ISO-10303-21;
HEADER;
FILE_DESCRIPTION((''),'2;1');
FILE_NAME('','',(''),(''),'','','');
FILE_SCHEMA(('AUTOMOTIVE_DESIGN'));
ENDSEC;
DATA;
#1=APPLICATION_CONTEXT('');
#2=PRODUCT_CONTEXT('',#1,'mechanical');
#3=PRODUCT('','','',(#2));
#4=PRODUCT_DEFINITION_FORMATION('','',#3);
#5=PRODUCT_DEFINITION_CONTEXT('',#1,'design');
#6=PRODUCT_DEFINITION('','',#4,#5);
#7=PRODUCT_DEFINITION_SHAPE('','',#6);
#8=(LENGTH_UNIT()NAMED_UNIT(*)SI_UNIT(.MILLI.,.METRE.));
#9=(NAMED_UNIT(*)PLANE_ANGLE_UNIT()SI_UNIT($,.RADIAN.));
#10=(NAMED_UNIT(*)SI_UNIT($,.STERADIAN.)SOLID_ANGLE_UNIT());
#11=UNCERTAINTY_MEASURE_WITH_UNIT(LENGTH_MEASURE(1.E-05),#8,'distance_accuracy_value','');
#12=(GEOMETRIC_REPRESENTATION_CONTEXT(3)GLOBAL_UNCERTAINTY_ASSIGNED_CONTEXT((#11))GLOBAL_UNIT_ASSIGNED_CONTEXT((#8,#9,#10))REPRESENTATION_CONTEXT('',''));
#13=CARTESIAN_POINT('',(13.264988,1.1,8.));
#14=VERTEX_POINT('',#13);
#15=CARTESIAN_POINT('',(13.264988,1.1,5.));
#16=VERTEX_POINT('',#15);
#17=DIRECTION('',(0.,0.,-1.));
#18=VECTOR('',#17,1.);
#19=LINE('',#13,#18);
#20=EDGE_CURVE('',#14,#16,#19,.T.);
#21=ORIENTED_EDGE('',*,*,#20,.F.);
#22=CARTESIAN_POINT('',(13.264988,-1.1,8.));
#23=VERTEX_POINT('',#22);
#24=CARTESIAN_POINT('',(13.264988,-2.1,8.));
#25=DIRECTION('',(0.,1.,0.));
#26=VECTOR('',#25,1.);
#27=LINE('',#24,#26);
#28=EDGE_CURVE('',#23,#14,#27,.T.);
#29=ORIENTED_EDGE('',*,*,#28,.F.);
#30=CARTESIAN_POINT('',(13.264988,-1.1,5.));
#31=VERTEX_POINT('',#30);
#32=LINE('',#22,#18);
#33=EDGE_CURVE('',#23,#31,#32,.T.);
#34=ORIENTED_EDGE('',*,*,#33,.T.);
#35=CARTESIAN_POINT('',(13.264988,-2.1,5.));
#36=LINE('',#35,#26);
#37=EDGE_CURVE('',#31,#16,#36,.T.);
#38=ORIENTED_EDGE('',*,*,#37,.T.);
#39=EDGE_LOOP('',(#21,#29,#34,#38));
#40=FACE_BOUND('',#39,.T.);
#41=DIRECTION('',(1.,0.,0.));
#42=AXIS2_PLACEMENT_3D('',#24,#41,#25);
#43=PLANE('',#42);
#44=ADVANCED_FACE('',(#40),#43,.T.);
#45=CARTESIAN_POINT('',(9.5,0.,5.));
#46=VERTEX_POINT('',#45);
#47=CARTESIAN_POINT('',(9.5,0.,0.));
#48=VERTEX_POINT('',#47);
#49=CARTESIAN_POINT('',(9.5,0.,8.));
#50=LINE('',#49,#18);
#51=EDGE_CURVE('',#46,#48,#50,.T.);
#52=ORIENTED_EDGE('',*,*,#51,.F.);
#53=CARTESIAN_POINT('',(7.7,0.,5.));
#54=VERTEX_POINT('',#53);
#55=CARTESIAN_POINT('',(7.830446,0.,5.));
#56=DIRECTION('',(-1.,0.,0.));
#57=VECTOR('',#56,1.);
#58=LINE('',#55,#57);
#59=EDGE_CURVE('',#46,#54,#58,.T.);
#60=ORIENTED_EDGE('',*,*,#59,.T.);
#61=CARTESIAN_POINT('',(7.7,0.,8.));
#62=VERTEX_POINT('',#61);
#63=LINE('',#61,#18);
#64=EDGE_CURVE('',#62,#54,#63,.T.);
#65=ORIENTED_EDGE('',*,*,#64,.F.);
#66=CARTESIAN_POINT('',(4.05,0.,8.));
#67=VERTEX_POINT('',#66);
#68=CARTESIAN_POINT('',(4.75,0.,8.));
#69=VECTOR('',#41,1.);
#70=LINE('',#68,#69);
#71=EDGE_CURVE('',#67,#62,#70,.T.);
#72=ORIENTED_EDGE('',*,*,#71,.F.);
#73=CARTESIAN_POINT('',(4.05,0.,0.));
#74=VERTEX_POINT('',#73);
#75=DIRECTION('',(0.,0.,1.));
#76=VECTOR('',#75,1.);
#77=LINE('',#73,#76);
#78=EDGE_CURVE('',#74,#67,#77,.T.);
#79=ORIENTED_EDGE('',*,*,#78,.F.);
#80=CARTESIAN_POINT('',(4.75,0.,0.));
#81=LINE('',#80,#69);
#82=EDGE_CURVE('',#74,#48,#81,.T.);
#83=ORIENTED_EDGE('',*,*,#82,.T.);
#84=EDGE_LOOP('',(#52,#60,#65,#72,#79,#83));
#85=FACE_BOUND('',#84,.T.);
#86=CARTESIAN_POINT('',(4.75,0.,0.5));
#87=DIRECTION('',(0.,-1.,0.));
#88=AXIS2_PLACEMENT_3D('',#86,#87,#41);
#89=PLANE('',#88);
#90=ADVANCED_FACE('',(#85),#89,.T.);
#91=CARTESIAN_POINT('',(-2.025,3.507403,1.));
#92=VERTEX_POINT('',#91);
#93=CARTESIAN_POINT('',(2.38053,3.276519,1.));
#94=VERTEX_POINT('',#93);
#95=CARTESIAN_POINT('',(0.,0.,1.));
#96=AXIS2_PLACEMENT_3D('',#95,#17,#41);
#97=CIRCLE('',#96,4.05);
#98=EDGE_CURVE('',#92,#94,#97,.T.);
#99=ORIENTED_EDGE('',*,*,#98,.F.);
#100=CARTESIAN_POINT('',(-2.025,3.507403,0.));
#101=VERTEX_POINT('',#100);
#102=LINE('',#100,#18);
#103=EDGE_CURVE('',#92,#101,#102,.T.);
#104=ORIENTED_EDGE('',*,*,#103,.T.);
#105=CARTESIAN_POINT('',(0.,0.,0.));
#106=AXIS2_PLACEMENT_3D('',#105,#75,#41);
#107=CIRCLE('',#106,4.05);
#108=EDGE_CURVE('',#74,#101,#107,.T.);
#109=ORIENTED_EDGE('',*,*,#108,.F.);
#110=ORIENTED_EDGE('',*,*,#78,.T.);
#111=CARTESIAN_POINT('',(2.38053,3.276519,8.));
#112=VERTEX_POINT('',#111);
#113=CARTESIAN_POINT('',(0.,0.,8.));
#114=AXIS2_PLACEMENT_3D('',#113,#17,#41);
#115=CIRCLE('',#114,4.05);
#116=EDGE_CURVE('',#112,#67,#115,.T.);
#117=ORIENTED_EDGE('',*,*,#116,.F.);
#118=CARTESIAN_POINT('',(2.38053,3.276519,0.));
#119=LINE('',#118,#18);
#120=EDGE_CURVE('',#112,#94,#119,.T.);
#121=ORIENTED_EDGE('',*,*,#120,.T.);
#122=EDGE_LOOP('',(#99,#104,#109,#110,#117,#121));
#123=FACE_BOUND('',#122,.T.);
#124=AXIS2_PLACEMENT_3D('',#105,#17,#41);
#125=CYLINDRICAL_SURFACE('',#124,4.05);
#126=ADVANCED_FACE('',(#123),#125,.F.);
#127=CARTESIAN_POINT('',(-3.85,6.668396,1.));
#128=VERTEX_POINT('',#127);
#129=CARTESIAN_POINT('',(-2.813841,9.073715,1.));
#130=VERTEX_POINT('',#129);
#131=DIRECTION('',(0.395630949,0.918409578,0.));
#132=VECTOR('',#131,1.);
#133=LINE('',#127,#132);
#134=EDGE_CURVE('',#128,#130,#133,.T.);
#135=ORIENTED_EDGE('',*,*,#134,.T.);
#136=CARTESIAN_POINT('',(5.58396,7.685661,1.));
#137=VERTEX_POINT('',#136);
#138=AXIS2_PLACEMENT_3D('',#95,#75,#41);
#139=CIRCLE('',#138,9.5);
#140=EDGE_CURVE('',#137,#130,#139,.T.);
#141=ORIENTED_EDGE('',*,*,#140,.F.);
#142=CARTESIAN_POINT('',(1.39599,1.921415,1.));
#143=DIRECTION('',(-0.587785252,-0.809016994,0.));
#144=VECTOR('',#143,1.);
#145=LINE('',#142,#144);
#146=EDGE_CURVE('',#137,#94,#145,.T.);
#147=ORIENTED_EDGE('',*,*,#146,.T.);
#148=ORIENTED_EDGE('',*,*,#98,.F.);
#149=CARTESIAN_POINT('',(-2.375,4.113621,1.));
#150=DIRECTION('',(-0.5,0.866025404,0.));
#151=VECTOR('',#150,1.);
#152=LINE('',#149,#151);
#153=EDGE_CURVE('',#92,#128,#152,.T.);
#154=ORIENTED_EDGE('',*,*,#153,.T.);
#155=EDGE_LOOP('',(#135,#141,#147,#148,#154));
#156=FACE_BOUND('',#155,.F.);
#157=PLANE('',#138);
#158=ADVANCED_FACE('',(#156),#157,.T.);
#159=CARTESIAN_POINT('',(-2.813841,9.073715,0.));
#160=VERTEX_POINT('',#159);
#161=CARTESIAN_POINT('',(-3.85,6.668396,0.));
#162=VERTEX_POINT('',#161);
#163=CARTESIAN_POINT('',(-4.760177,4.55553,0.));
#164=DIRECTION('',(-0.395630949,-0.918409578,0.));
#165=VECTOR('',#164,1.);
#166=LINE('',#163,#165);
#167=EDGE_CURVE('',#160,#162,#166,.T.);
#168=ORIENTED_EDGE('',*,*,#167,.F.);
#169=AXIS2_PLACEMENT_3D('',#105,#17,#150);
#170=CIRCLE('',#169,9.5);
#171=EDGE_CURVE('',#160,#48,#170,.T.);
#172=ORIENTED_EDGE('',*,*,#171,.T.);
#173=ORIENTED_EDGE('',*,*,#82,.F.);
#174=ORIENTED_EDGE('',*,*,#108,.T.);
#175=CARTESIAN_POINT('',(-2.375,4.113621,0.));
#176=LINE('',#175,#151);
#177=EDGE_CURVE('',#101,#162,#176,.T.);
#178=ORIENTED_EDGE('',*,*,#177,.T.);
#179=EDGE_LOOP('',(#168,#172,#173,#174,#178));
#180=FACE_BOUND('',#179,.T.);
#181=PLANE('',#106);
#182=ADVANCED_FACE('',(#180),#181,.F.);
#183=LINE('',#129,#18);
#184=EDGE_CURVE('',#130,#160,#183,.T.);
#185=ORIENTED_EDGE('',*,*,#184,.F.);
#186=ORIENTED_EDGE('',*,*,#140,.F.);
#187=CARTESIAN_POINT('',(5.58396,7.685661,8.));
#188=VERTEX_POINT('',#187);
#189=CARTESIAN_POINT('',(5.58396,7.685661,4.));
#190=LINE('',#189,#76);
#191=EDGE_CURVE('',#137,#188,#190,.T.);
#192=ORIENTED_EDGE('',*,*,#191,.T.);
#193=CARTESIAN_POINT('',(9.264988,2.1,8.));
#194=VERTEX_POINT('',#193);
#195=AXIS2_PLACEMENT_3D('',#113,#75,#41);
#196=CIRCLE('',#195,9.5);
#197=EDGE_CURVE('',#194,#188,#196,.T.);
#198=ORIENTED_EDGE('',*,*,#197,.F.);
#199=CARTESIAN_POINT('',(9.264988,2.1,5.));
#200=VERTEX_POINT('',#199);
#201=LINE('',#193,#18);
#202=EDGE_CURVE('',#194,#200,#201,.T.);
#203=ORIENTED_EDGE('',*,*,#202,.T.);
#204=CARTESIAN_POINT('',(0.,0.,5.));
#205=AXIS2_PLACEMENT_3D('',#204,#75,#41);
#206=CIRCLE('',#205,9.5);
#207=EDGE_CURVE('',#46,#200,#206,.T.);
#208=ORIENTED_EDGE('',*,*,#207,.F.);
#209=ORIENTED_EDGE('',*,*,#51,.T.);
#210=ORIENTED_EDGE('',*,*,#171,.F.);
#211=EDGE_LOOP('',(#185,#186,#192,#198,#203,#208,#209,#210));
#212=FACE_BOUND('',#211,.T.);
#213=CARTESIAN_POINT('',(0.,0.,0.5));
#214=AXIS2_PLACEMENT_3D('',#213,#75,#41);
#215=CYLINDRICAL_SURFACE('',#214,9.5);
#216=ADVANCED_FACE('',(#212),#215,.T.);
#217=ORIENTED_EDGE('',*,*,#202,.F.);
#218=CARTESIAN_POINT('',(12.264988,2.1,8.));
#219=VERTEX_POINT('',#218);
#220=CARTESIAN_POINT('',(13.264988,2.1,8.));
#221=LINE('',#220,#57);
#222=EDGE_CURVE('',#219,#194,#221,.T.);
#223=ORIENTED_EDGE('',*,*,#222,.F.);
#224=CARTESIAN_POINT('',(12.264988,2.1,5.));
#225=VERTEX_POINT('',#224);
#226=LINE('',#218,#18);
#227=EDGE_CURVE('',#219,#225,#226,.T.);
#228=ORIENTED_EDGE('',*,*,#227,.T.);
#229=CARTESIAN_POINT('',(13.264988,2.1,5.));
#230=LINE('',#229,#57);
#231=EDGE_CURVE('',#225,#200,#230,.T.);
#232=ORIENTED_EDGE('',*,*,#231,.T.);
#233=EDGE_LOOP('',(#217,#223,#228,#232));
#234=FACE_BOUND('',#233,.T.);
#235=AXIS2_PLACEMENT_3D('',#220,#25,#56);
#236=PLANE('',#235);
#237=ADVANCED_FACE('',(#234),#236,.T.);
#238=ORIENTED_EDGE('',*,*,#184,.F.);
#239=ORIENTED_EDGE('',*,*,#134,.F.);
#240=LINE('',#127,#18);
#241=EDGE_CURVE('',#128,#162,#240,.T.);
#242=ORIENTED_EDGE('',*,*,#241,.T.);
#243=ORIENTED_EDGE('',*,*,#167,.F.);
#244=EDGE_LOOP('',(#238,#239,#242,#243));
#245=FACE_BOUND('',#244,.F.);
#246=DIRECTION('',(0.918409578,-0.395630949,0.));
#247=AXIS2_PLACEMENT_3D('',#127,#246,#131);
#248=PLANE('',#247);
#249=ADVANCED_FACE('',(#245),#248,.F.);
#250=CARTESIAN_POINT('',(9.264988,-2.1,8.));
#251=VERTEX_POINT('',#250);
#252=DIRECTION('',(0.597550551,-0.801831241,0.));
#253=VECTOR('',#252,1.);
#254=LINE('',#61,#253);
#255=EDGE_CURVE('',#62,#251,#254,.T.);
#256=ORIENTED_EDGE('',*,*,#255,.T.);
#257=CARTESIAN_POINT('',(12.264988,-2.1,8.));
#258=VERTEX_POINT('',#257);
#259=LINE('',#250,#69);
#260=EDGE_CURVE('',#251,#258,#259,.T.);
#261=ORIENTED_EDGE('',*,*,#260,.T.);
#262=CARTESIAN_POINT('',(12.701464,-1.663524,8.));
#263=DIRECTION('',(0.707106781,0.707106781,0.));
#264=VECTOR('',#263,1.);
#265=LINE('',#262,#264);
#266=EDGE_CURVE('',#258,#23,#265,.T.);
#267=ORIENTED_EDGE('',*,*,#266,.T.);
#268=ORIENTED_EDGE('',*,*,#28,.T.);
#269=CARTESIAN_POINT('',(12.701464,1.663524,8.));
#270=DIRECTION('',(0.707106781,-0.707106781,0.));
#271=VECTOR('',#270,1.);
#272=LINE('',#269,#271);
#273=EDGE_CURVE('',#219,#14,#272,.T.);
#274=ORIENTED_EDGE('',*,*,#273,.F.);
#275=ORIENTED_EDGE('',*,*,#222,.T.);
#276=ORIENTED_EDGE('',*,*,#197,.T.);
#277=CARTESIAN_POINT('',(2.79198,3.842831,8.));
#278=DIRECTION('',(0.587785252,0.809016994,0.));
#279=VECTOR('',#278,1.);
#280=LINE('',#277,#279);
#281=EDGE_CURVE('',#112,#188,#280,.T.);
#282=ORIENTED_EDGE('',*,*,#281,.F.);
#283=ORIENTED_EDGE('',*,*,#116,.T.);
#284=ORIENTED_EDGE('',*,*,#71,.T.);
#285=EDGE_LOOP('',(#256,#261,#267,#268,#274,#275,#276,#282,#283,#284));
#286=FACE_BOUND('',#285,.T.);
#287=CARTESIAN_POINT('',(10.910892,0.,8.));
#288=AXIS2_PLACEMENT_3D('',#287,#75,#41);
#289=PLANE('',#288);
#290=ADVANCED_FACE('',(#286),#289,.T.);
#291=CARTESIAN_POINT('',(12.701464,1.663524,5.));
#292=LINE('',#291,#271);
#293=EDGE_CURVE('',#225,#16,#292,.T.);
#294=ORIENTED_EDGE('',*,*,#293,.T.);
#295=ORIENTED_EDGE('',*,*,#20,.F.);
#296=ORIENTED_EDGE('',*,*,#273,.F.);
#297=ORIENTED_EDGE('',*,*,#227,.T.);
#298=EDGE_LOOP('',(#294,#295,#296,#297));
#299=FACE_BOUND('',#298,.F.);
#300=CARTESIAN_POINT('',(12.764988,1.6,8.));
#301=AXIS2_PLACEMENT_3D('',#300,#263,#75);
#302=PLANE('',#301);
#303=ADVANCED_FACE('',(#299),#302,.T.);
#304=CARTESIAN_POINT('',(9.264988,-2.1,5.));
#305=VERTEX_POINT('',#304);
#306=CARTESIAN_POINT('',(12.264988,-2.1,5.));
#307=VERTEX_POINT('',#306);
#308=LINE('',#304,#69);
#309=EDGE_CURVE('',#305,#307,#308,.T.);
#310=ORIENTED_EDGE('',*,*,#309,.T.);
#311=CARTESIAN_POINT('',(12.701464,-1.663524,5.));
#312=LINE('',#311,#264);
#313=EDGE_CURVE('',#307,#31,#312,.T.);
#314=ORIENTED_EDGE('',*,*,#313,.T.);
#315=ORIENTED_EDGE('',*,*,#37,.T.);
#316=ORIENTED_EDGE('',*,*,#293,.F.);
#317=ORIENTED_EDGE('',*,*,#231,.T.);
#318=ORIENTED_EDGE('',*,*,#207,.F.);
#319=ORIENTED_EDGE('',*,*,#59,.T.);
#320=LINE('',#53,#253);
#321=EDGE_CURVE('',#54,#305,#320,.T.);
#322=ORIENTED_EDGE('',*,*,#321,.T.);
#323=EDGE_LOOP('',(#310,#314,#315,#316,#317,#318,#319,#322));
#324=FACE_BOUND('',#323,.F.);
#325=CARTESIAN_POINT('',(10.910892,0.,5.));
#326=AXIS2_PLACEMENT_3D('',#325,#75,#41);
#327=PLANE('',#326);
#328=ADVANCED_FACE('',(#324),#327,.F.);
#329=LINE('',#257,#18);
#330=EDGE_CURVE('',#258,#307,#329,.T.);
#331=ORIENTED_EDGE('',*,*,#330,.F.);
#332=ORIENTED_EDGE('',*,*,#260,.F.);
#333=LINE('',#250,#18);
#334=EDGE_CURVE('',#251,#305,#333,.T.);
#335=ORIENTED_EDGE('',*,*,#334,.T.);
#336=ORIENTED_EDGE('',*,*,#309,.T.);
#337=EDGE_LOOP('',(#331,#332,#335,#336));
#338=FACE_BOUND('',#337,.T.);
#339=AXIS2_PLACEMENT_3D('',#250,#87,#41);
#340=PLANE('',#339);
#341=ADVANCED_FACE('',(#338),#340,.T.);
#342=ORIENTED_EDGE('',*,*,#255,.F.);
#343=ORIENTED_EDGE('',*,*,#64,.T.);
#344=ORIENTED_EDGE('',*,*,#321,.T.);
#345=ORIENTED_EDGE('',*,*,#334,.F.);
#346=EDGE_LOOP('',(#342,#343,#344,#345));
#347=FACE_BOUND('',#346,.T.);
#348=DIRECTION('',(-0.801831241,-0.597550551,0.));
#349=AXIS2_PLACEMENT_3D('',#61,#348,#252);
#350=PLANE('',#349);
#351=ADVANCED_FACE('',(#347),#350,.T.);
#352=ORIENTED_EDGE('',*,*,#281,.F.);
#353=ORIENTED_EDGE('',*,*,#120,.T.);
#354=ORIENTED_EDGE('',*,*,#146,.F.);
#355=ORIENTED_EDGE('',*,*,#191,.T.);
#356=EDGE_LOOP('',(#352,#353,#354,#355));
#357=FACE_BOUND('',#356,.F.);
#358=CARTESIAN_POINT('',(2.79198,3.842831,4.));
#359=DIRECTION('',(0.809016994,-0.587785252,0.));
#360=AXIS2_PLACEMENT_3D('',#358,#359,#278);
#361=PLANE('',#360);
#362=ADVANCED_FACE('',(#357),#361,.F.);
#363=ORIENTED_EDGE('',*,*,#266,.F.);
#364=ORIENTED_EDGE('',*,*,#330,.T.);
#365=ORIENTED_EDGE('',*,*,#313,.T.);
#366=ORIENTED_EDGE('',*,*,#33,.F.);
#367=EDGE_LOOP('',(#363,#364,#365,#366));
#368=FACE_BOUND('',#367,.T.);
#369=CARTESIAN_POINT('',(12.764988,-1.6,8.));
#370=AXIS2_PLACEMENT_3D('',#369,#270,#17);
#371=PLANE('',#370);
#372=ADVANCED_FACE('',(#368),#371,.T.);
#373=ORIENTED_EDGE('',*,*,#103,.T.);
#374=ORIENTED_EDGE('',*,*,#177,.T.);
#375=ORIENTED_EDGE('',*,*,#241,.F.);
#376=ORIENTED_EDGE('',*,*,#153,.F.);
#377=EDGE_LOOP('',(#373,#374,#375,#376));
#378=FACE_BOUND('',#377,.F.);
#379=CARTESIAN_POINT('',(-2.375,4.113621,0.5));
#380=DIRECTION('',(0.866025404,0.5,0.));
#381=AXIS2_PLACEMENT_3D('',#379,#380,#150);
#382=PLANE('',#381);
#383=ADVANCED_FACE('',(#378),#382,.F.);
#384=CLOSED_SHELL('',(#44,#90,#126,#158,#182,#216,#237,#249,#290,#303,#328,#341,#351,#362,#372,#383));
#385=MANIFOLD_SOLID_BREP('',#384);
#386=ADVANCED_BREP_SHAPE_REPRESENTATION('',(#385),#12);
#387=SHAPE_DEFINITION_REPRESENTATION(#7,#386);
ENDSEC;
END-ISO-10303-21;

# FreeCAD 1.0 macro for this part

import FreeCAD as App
import Part
import Sketcher


def edges_at(feature, points):
    """Names of the edges that pass closest to the given points."""
    edges = feature.Shape.Edges
    near = lambda p: min(range(len(edges)), key=lambda i: edges[i].distToShape(Part.Vertex(*p))[0])
    return sorted({f"Edge{near(p) + 1}" for p in points})


def add_polygon(sketch, points):
    """Adds a closed chain of lines whose ends are joined by coincident constraints."""
    first, n = sketch.GeometryCount, len(points)
    for a, b in zip(points, points[1:] + points[:1]):
        sketch.addGeometry(Part.LineSegment(App.Vector(*a, 0), App.Vector(*b, 0)), False)
    for i in range(n):
        sketch.addConstraint(Sketcher.Constraint("Coincident", first + i, 2, first + (i + 1) % n, 1))

doc = App.newDocument("Part")
body = doc.addObject("PartDesign::Body", "Body")

sketch1 = body.newObject("Sketcher::SketchObject", "Sketch")
sketch1.AttachmentSupport = (doc.getObject("XY_Plane"), [""])
sketch1.MapMode = "FlatFace"
sketch1.AttachmentOffset = App.Placement(App.Vector(0, 0, 8), App.Rotation())
add_polygon(sketch1, [(13.3, 2.1), (9.3, 2.1), (7.7, 0), (9.3, -2.1), (13.3, -2.1)])
sketch1.addConstraint(Sketcher.Constraint("Horizontal", 0))
sketch1.addConstraint(Sketcher.Constraint("Horizontal", 3))
sketch1.addConstraint(Sketcher.Constraint("Vertical", 4))
sketch1.addConstraint(Sketcher.Constraint("Symmetric", 0, 2, 2, 2, -1))
sketch1.addConstraint(Sketcher.Constraint("PointOnObject", 1, 2, -1))
sketch1.addConstraint(Sketcher.Constraint("DistanceX", 0, 2, 0, 1, 4.0))
sketch1.addConstraint(Sketcher.Constraint("DistanceY", 4, 1, 4, 2, 4.2))
sketch1.addConstraint(Sketcher.Constraint("DistanceX", -1, 1, 1, 2, 7.7))
sketch1.addConstraint(Sketcher.Constraint("Distance", 1, 2.619005))
pad1 = body.newObject("PartDesign::Pad", "Pad")
pad1.Profile = sketch1
pad1.Length = 3
pad1.Reversed = True
body2 = doc.addObject("PartDesign::Body", "Body001")
doc.recompute()

body.Placement = App.Placement(App.Vector(0, 0, -7), App.Rotation(App.Vector(0, 0, 1), 120))
boolean = body2.newObject("PartDesign::Boolean", "Boolean")
boolean.Type = "Fuse"
boolean.addObjects([body])
body3 = doc.addObject("PartDesign::Body", "Body002")

sketch2 = body3.newObject("Sketcher::SketchObject", "Sketch001")
sketch2.AttachmentSupport = (doc.getObject("XY_Plane002"), [""])
sketch2.MapMode = "FlatFace"
sketch2.AttachmentOffset = App.Placement(App.Vector(0, 0, 8), App.Rotation())
add_polygon(sketch2, [(13.3, 2.1), (9.3, 2.1), (7.7, 0), (9.3, -2.1), (13.3, -2.1)])
sketch2.addConstraint(Sketcher.Constraint("Horizontal", 0))
sketch2.addConstraint(Sketcher.Constraint("Horizontal", 3))
sketch2.addConstraint(Sketcher.Constraint("Vertical", 4))
sketch2.addConstraint(Sketcher.Constraint("Symmetric", 0, 2, 2, 2, -1))
sketch2.addConstraint(Sketcher.Constraint("PointOnObject", 1, 2, -1))
sketch2.addConstraint(Sketcher.Constraint("DistanceX", 0, 2, 0, 1, 4.0))
sketch2.addConstraint(Sketcher.Constraint("DistanceY", 4, 1, 4, 2, 4.2))
sketch2.addConstraint(Sketcher.Constraint("DistanceX", -1, 1, 1, 2, 7.7))
sketch2.addConstraint(Sketcher.Constraint("Distance", 1, 2.619005))
pad2 = body3.newObject("PartDesign::Pad", "Pad001")
pad2.Profile = sketch2
pad2.Length = 3
pad2.Reversed = True
doc.recompute()

chamfer = body3.newObject("PartDesign::Chamfer", "Chamfer")
chamfer.Base = (pad2, edges_at(pad2, [(13.265, 2.1, 6.5), (13.265, -2.1, 6.5)]))
chamfer.Size = 1
body4 = doc.addObject("PartDesign::Body", "Body003")

sketch3 = body4.newObject("Sketcher::SketchObject", "Sketch002")
sketch3.AttachmentSupport = (doc.getObject("XY_Plane003"), [""])
sketch3.MapMode = "FlatFace"
sketch3.addGeometry(Part.Circle(App.Vector(0, 0, 0), App.Vector(0, 0, 1), 4), False)
sketch3.addConstraint(Sketcher.Constraint("Coincident", 0, 3, -1, 1))
sketch3.addConstraint(Sketcher.Constraint("Diameter", 0, 8.1))
pad3 = body4.newObject("PartDesign::Pad", "Pad002")
pad3.Profile = sketch3
pad3.Length = 10
body5 = doc.addObject("PartDesign::Body", "Body004")

sketch4 = body5.newObject("Sketcher::SketchObject", "Sketch003")
sketch4.AttachmentSupport = (doc.getObject("XZ_Plane004"), [""])
sketch4.MapMode = "FlatFace"
add_polygon(sketch4, [(0, 8), (0, 0), (10, 0), (10, 8)])
sketch4.addConstraint(Sketcher.Constraint("Vertical", 0))
sketch4.addConstraint(Sketcher.Constraint("Horizontal", 1))
sketch4.addConstraint(Sketcher.Constraint("Vertical", 2))
sketch4.addConstraint(Sketcher.Constraint("Horizontal", 3))
sketch4.addConstraint(Sketcher.Constraint("Coincident", 0, 2, -1, 1))
sketch4.addConstraint(Sketcher.Constraint("DistanceY", 0, 2, 0, 1, 8.0))
sketch4.addConstraint(Sketcher.Constraint("DistanceX", 1, 1, 1, 2, 9.5))
revolution = body5.newObject("PartDesign::Revolution", "Revolution")
revolution.Profile = sketch4
revolution.ReferenceAxis = (sketch4, ["V_Axis"])
revolution.Angle = 54
body6 = doc.addObject("PartDesign::Body", "Body005")

sketch5 = body6.newObject("Sketcher::SketchObject", "Sketch004")
sketch5.AttachmentSupport = (doc.getObject("XZ_Plane005"), [""])
sketch5.MapMode = "FlatFace"
add_polygon(sketch5, [(0, 1), (0, 0), (9.5, 0), (9.5, 1)])
sketch5.addConstraint(Sketcher.Constraint("Vertical", 0))
sketch5.addConstraint(Sketcher.Constraint("Horizontal", 1))
sketch5.addConstraint(Sketcher.Constraint("Vertical", 2))
sketch5.addConstraint(Sketcher.Constraint("Horizontal", 3))
sketch5.addConstraint(Sketcher.Constraint("Coincident", 0, 2, -1, 1))
sketch5.addConstraint(Sketcher.Constraint("DistanceY", 0, 2, 0, 1, 1.0))
sketch5.addConstraint(Sketcher.Constraint("DistanceX", 1, 1, 1, 2, 9.5))
revolution2 = body6.newObject("PartDesign::Revolution", "Revolution001")
revolution2.Profile = sketch5
revolution2.ReferenceAxis = (sketch5, ["V_Axis"])
revolution2.Angle = 120
doc.recompute()

boolean2 = body6.newObject("PartDesign::Boolean", "Boolean001")
boolean2.Type = "Fuse"
boolean2.addObjects([body5])
doc.recompute()

boolean3 = body6.newObject("PartDesign::Boolean", "Boolean002")
boolean3.Type = "Cut"
boolean3.addObjects([body4])
doc.recompute()

boolean4 = body6.newObject("PartDesign::Boolean", "Boolean003")
boolean4.Type = "Fuse"
boolean4.addObjects([body3])
doc.recompute()

boolean5 = body6.newObject("PartDesign::Boolean", "Boolean004")
boolean5.Type = "Cut"
boolean5.addObjects([body2])

doc.recompute()
